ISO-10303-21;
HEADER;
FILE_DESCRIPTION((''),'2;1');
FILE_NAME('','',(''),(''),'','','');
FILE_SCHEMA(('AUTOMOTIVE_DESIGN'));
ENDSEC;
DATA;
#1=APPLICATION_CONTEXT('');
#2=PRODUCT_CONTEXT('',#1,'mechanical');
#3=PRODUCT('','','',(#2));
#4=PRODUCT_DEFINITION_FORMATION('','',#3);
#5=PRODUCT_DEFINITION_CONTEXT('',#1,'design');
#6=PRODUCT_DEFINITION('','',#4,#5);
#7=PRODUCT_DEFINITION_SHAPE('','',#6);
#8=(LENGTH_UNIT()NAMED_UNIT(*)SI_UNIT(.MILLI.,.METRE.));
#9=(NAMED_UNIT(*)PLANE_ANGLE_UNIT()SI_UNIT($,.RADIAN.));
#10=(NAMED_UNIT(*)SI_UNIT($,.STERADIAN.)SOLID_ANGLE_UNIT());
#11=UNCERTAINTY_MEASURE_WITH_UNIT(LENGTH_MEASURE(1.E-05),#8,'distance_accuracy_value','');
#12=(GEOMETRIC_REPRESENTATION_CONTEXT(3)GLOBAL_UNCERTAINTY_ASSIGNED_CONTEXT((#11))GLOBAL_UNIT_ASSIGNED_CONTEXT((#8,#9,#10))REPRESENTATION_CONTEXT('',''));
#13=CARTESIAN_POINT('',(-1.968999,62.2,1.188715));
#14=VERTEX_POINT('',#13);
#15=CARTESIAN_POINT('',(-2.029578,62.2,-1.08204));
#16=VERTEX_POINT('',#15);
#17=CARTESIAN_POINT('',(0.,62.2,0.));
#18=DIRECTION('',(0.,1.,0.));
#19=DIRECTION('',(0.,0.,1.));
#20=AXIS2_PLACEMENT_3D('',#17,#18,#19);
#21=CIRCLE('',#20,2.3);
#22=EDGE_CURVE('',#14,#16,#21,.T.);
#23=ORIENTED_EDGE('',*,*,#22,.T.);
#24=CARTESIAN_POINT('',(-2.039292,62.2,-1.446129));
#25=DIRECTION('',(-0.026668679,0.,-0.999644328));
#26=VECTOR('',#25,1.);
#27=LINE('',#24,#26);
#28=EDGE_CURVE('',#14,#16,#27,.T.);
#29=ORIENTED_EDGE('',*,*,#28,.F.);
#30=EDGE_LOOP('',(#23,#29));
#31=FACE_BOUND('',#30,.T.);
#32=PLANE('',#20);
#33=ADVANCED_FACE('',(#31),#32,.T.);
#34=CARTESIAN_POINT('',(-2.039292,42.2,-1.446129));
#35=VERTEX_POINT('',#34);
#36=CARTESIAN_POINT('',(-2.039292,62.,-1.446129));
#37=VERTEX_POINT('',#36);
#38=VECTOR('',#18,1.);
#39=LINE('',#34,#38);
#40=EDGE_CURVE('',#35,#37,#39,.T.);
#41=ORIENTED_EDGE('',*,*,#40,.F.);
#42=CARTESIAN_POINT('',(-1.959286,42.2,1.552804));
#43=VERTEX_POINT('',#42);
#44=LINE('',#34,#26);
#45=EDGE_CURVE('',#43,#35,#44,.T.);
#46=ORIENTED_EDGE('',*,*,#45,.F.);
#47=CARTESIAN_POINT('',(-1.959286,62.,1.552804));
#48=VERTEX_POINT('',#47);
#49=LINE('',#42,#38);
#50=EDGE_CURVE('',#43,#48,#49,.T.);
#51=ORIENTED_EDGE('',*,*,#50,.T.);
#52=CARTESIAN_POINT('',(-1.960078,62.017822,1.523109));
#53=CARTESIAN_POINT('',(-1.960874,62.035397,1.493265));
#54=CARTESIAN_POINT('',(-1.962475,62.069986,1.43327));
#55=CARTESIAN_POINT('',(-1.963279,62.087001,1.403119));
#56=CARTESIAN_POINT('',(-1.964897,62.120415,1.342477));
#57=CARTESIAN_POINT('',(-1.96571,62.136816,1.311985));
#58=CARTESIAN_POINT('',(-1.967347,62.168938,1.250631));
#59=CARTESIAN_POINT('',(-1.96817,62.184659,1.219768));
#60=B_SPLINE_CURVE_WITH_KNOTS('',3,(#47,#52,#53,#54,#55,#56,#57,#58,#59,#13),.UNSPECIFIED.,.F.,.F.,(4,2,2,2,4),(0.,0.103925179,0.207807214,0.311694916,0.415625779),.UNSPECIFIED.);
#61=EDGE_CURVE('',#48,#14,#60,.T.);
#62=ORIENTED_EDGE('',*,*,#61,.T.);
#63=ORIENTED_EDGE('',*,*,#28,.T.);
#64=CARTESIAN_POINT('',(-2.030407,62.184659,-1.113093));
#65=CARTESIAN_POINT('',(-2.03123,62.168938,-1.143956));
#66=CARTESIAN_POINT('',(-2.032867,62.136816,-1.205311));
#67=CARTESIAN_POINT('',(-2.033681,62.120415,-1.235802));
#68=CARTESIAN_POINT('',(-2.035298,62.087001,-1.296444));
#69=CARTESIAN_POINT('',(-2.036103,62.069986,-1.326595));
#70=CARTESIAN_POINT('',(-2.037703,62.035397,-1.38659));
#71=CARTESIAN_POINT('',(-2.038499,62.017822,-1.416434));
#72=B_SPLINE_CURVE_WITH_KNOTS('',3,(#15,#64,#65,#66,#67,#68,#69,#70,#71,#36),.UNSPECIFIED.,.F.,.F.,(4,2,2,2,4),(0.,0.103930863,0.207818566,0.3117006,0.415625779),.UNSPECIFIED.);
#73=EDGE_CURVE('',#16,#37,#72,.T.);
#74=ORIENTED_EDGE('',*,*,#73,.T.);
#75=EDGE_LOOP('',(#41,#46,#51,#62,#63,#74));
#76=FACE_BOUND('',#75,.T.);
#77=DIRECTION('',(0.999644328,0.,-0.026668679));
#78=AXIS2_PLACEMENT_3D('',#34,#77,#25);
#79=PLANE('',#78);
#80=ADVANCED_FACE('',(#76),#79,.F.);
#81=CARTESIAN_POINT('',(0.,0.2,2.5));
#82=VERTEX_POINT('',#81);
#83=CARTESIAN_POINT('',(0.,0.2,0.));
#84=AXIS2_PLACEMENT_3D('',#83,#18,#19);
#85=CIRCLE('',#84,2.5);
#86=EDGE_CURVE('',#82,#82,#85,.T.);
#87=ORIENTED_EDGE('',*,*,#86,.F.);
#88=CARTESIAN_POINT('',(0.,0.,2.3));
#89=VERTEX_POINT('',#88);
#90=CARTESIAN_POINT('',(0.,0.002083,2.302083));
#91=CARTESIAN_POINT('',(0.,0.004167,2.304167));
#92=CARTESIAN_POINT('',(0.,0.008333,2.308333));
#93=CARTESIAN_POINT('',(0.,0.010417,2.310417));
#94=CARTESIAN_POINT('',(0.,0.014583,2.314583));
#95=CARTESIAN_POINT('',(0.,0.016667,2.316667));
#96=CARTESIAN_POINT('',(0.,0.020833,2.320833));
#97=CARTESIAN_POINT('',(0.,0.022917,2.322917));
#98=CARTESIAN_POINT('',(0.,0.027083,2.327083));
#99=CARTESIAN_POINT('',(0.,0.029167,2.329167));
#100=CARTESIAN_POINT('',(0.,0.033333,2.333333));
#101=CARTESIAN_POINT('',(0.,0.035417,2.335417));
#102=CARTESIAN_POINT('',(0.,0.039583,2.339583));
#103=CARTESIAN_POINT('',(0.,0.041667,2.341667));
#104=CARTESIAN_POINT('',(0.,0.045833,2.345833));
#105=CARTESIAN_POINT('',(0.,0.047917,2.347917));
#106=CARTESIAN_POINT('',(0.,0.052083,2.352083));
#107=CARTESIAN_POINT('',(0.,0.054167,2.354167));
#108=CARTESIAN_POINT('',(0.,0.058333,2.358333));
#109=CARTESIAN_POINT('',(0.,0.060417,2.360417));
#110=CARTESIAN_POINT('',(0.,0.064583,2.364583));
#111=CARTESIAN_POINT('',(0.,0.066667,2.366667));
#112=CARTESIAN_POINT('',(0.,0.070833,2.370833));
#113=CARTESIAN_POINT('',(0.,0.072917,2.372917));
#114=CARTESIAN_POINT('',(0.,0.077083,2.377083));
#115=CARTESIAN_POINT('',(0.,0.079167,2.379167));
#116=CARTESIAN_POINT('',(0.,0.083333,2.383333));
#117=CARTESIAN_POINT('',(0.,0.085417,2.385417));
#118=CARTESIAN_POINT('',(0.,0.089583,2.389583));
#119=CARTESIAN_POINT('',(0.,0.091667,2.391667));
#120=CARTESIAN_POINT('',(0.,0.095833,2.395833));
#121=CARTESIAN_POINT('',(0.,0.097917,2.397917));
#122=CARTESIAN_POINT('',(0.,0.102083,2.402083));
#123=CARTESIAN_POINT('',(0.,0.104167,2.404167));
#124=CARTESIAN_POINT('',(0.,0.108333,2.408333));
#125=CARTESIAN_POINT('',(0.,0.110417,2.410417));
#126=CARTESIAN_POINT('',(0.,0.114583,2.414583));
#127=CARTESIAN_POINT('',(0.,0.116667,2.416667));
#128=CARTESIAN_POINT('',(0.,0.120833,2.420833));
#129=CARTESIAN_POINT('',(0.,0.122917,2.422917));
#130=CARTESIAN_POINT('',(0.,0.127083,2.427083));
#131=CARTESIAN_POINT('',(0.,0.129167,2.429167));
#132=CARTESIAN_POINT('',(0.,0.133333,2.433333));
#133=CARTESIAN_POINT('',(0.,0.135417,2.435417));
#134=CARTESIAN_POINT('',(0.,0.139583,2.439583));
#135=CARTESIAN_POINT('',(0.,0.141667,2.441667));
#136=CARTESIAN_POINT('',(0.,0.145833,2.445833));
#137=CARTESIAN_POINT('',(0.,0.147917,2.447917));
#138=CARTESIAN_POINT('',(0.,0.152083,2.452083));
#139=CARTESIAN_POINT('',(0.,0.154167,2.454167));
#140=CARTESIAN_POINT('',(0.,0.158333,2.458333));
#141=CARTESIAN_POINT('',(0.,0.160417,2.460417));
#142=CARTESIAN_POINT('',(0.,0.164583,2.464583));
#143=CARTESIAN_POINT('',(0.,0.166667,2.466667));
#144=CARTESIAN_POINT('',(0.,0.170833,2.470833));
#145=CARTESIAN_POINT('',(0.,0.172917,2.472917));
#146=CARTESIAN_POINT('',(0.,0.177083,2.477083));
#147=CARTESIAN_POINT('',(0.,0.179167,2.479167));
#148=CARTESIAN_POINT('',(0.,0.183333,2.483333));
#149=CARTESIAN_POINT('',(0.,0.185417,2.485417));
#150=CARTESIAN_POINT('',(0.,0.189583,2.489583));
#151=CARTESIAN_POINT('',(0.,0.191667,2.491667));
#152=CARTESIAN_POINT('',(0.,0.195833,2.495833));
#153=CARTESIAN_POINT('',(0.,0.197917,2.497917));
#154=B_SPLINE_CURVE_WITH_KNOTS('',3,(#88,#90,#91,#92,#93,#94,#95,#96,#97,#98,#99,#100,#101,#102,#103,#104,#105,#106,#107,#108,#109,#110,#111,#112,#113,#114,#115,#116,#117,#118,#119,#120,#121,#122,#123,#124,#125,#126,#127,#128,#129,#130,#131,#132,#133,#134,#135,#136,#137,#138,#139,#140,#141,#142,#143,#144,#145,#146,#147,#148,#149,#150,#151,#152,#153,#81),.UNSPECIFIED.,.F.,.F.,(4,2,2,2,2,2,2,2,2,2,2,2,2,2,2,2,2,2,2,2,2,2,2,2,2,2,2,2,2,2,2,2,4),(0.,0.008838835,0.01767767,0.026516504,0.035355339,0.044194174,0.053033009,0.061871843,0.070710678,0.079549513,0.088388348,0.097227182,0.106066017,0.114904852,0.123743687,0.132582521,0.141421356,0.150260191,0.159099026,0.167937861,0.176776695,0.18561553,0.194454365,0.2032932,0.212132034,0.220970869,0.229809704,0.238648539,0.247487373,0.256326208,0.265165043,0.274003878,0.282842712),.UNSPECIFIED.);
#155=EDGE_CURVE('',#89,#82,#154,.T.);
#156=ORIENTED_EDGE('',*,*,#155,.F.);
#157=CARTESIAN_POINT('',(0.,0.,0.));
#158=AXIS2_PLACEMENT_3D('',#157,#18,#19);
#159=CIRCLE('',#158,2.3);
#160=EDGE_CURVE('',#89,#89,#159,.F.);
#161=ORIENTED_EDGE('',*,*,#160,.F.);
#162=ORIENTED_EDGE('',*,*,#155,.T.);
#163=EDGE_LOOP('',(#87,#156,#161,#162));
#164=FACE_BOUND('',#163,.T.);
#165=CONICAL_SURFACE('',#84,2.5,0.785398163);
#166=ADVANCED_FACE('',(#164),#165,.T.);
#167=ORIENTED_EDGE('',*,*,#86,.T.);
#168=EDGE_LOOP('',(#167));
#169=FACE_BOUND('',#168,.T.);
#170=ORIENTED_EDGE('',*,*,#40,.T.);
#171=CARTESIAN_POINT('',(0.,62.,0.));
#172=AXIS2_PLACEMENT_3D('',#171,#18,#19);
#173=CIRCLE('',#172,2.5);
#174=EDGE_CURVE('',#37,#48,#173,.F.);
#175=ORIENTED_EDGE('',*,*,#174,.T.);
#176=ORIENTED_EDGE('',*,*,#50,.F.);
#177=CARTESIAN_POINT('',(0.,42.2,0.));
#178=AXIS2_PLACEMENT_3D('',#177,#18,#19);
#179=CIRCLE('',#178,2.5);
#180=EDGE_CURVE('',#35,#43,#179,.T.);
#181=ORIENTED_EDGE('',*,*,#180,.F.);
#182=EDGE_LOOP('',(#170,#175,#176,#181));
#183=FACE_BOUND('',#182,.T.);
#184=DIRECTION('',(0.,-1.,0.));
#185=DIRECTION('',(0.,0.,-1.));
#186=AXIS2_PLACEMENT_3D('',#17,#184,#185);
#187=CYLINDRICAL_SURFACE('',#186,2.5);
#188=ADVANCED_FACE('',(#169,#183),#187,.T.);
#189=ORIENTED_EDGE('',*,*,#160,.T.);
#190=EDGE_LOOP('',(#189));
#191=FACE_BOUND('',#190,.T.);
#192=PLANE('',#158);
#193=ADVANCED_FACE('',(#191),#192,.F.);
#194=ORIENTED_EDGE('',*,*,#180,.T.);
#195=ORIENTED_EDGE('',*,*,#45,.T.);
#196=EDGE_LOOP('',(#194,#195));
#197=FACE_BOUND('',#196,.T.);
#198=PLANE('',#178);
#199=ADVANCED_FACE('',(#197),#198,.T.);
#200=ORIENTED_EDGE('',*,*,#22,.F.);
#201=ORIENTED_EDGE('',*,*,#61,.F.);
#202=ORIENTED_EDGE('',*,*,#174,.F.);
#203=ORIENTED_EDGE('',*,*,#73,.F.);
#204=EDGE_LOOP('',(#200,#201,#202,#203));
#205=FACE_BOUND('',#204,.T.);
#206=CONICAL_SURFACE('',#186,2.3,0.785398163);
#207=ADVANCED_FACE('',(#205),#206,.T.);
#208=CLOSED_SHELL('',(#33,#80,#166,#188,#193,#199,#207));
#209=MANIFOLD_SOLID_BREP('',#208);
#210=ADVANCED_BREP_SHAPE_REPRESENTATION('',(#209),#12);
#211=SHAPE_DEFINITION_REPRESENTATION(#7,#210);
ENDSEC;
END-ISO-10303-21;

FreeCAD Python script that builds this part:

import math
import FreeCAD as App
import Part
import Sketcher
Q = App.Units.Quantity


def edges_at(feature, points):
    """Names of the edges that pass closest to the given points."""
    edges = feature.Shape.Edges
    near = lambda p: min(range(len(edges)), key=lambda i: edges[i].distToShape(Part.Vertex(*p))[0])
    return sorted({f"Edge{near(p) + 1}" for p in points})

doc = App.newDocument("Part")
params = doc.addObject("Spreadsheet::Sheet", "Params")
for row, (alias, value) in enumerate([
    ("sketch1_diameter", "5 mm"),
    ("pad1_length", "62.2 mm"),
    ("sketch2_radius", "2.5 mm"),
    ("sketch2_length", "3 mm"),
    ("pocket1_length", "63.300401 mm"),
    ("pocket1_length2", "20 mm"),
    ("chamfer_size", "0.2 mm"),
    ("chamfer2_size", "0.2 mm"),
], start=1):
    params.set(f"A{row}", alias)
    params.set(f"B{row}", "=" + value)
    params.setAlias(f"B{row}", alias)

body = doc.addObject("PartDesign::Body", "Body")

# Sketch on XZ plane
sketch1 = body.newObject("Sketcher::SketchObject", "Sketch")
sketch1.AttachmentSupport = (doc.getObject("XZ_Plane"), [""])
sketch1.MapMode = "FlatFace"
sketch1.addGeometry(Part.Circle(App.Vector(0, 0, 0), App.Vector(0, 0, 1), 2.5), False)
sketch1.addConstraint([
    Sketcher.Constraint("Coincident", 0, 3, -1, 1),
    Sketcher.Constraint("Diameter", 0, Q("5 mm")),
])
sketch1.setExpression("Constraints[1]", "Params.sketch1_diameter")
pad1 = body.newObject("PartDesign::Pad", "Pad")
pad1.Profile = sketch1
pad1.setExpression("Length", "Params.pad1_length")
pad1.Reversed = True

# Sketch on XZ plane
sketch2 = body.newObject("Sketcher::SketchObject", "Sketch001")
sketch2.AttachmentSupport = (doc.getObject("XZ_Plane"), [""])
sketch2.MapMode = "FlatFace"
sketch2.AttachmentOffset = App.Placement(App.Vector(0, 0, -62.2), App.Rotation())
sketch2.addGeometry([
    Part.LineSegment(App.Vector(-2, 1.6, 0), App.Vector(-2, -1.4, 0)),
    Part.ArcOfCircle(Part.Circle(App.Vector(0, 0, 0), App.Vector(0, 0, 1), 2.5), math.radians(142), math.radians(215)),
], False)
sketch2.addConstraint([
    Sketcher.Constraint("Coincident", 0, 1, 1, 1),
    Sketcher.Constraint("Coincident", 1, 2, 0, 2),
    Sketcher.Constraint("Coincident", 1, 3, -1, 1),
    Sketcher.Constraint("Radius", 1, Q("2.5 mm")),
    Sketcher.Constraint("Distance", 0, Q("3 mm")),
    Sketcher.Constraint("DistanceX", 1, 2, -1, 1, Q("2.039292 mm")),
])
sketch2.setExpression("Constraints[3]", "Params.sketch2_radius")
sketch2.setExpression("Constraints[4]", "Params.sketch2_length")
pocket1 = body.newObject("PartDesign::Pocket", "Pocket")
pocket1.Profile = sketch2
pocket1.Type = "TwoLengths"
pocket1.setExpression("Length", "Params.pocket1_length")
pocket1.setExpression("Length2", "Params.pocket1_length2")
doc.recompute()

chamfer = body.newObject("PartDesign::Chamfer", "Chamfer")
chamfer.Base = (pocket1, edges_at(pocket1, [(2.251, 62.2, 1.088)]))
chamfer.setExpression("Size", "Params.chamfer_size")
doc.recompute()

chamfer2 = body.newObject("PartDesign::Chamfer", "Chamfer001")
chamfer2.Base = (chamfer, edges_at(chamfer, [(0, 0, 2.5)]))
chamfer2.setExpression("Size", "Params.chamfer2_size")

doc.recompute()
